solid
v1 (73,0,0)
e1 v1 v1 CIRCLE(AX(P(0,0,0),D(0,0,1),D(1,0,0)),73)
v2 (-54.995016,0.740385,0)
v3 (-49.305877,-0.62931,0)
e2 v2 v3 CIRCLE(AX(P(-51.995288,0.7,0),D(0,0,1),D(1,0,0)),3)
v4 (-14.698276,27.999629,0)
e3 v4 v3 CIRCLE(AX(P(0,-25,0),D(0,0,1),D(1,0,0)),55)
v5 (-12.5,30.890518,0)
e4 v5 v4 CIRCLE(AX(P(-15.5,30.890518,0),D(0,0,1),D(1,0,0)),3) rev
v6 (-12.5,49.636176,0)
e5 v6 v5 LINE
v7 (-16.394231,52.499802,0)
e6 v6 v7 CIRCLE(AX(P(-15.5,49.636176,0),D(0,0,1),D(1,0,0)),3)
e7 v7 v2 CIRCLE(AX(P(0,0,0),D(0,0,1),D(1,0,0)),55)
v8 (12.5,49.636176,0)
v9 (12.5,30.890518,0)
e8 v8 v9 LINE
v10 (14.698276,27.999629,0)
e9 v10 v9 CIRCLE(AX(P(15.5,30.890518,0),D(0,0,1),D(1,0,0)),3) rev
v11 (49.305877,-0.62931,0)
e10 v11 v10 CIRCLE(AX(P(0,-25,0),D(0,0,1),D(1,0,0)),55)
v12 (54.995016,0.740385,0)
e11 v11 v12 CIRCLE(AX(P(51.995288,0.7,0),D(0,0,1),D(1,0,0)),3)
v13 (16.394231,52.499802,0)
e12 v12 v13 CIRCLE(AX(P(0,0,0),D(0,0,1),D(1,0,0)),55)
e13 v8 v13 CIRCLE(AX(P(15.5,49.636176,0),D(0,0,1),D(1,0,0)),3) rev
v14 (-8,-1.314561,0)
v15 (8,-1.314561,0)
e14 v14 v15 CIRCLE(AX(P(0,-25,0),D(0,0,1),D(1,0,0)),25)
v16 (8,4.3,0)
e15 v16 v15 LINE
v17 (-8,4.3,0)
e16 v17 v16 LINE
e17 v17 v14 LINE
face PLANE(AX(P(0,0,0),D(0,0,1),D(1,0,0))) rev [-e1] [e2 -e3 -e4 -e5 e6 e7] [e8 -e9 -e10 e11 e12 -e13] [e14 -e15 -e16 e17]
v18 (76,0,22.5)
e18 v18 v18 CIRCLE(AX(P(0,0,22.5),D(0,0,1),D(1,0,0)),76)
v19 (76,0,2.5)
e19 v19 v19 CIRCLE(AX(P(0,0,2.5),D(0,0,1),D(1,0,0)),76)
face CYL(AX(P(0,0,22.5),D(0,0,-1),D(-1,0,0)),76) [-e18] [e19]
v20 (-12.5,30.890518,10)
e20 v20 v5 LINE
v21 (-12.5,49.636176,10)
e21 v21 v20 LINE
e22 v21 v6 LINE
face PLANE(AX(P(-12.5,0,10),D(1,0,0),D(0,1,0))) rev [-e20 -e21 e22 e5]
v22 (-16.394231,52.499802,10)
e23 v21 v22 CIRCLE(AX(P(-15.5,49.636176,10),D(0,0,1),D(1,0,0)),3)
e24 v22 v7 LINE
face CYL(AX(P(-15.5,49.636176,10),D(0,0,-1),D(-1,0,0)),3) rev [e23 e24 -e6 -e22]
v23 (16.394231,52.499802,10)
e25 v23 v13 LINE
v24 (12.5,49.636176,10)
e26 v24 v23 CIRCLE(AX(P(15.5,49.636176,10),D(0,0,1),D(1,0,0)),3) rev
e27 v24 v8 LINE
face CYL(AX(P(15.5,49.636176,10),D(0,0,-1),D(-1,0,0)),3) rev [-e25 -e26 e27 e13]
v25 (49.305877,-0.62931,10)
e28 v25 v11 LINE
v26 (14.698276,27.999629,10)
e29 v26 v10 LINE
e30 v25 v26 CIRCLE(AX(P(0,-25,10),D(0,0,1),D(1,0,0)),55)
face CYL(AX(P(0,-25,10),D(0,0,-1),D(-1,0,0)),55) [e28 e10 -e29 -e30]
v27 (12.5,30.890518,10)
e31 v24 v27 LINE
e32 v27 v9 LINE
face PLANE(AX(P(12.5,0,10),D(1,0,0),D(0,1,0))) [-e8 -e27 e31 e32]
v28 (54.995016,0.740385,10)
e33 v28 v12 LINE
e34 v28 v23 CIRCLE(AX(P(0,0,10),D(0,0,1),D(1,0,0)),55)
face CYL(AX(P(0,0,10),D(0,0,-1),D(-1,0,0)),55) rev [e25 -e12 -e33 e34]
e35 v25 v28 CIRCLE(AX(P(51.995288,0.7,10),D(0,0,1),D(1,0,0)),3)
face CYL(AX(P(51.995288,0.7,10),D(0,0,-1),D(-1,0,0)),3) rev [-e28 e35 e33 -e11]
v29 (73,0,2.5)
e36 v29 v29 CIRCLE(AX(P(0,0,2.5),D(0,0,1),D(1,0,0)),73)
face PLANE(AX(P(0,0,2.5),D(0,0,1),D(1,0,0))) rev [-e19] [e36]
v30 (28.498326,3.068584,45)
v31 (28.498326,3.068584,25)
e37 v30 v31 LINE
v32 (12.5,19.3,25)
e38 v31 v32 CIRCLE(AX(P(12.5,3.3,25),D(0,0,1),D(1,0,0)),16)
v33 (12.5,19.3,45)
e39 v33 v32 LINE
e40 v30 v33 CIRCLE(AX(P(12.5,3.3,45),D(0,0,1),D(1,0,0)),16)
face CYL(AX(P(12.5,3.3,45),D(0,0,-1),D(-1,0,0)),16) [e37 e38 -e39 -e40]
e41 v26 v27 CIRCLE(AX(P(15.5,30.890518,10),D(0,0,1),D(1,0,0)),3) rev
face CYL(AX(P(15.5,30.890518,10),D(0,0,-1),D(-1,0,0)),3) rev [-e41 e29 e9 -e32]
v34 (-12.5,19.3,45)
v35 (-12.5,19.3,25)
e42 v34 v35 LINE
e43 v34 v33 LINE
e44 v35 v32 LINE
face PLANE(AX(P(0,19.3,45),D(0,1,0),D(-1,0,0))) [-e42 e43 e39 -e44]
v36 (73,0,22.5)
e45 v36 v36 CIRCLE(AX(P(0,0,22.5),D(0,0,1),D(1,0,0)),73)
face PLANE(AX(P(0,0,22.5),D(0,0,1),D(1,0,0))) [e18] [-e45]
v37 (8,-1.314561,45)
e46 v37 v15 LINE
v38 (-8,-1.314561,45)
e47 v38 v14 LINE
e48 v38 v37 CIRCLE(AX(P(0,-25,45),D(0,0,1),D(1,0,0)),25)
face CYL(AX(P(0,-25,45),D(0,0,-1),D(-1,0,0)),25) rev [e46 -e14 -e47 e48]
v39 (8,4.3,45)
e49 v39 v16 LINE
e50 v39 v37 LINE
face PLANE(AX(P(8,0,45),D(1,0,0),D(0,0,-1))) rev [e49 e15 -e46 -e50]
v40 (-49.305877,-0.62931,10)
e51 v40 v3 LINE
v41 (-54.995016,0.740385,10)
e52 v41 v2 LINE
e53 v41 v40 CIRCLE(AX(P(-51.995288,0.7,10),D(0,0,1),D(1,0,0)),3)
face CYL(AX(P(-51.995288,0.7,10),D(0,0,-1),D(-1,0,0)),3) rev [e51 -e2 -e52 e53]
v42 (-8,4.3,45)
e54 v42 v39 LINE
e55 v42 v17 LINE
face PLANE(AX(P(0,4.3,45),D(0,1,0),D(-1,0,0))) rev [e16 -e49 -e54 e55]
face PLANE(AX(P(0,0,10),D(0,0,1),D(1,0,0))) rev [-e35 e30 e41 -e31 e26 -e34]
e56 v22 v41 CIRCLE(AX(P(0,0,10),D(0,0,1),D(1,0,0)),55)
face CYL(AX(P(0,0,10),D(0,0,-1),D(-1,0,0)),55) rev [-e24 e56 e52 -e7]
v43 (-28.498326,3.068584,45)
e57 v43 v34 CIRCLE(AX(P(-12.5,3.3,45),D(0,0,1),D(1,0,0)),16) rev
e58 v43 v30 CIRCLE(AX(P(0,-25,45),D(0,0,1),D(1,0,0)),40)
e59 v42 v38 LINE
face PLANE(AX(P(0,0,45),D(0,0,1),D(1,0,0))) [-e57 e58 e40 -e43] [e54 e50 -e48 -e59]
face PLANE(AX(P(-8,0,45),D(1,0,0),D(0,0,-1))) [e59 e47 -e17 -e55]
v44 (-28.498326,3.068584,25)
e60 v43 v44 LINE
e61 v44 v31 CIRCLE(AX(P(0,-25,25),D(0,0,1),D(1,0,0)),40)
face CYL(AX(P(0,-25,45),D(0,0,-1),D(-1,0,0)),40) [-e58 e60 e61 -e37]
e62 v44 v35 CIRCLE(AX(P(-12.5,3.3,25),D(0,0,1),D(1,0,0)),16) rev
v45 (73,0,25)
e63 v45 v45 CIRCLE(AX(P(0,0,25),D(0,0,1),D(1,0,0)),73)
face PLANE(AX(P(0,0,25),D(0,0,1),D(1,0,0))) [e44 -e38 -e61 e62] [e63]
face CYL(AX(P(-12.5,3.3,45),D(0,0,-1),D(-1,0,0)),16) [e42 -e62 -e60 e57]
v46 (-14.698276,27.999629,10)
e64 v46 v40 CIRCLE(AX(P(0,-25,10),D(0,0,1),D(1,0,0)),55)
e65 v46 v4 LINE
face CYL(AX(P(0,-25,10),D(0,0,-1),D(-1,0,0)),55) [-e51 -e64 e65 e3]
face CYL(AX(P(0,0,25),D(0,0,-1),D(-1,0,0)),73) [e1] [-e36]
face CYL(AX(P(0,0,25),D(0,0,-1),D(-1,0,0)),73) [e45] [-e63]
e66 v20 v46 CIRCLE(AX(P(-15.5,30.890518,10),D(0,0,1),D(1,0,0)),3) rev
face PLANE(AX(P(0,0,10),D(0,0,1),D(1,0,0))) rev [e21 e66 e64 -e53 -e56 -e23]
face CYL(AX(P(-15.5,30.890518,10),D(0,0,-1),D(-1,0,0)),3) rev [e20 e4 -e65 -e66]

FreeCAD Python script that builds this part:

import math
import FreeCAD as App
import Part
import Sketcher

V = App.Vector

doc = App.newDocument("Part")
body = doc.addObject("PartDesign::Body", "Body")

sketch1 = doc.addObject("Sketcher::SketchObject", "Sketch")
body.addObject(sketch1)
sketch1.AttachmentSupport = (doc.XY_Plane, [""])
sketch1.MapMode = "FlatFace"
sketch1.addGeometry(Part.Circle(V(0, 0, 0), V(0, 0, 1), 73), False)
sketch1.addGeometry(Part.ArcOfCircle(Part.Circle(V(0, -25, 0), V(0, 0, 1), 40), math.radians(135), math.radians(405)), False)
sketch1.addGeometry(Part.ArcOfCircle(Part.Circle(V(-12, 3, 0), V(0, 0, 1), 16), math.radians(90), math.radians(181)), False)
sketch1.addGeometry(Part.LineSegment(V(-12, 19, 0), V(12, 19, 0)), False)
sketch1.addGeometry(Part.ArcOfCircle(Part.Circle(V(12, 3, 0), V(0, 0, 1), 16), math.radians(-1), math.radians(90)), False)
sketch1.addConstraint(Sketcher.Constraint("Coincident", 1, 1, 2, 2))
sketch1.addConstraint(Sketcher.Constraint("Tangent", 2, 1, 3, 1))
sketch1.addConstraint(Sketcher.Constraint("Tangent", 3, 2, 4, 2))
sketch1.addConstraint(Sketcher.Constraint("Coincident", 4, 1, 1, 2))
sketch1.addConstraint(Sketcher.Constraint("Horizontal", 3))
sketch1.addConstraint(Sketcher.Constraint("Coincident", 0, 3, -1, 1))
sketch1.addConstraint(Sketcher.Constraint("Equal", 2, 4))
sketch1.addConstraint(Sketcher.Constraint("Symmetric", 1, 1, 4, 1, -2))
sketch1.addConstraint(Sketcher.Constraint("Diameter", 0, 146.0))
sketch1.addConstraint(Sketcher.Constraint("Radius", 1, 40.0))
sketch1.addConstraint(Sketcher.Constraint("Radius", 2, 16.0))
sketch1.addConstraint(Sketcher.Constraint("DistanceX", 3, 1, 3, 2, 25.0))
sketch1.addConstraint(Sketcher.Constraint("DistanceY", 1, 3, -1, 1, 25.0))
sketch1.addConstraint(Sketcher.Constraint("DistanceY", -1, 1, 2, 3, 3.3))
pad1 = doc.addObject("PartDesign::Pad", "Pad")
body.addObject(pad1)
pad1.Profile = sketch1
pad1.Length = 25

sketch2 = doc.addObject("Sketcher::SketchObject", "Sketch001")
body.addObject(sketch2)
sketch2.AttachmentSupport = (doc.XY_Plane, [""])
sketch2.MapMode = "FlatFace"
sketch2.AttachmentOffset = App.Placement(V(0, 0, 2.5), App.Rotation())
sketch2.addGeometry(Part.Circle(V(0, 0, 0), V(0, 0, 1), 76), False)
sketch2.addGeometry(Part.Circle(V(0, 0, 0), V(0, 0, 1), 73), False)
sketch2.addConstraint(Sketcher.Constraint("Coincident", 0, 3, -1, 1))
sketch2.addConstraint(Sketcher.Constraint("Coincident", 1, 3, -1, 1))
sketch2.addConstraint(Sketcher.Constraint("Diameter", 0, 152.0))
sketch2.addConstraint(Sketcher.Constraint("Diameter", 1, 146.0))
pad2 = doc.addObject("PartDesign::Pad", "Pad001")
body.addObject(pad2)
pad2.Profile = sketch2
pad2.Length = 20

sketch3 = doc.addObject("Sketcher::SketchObject", "Sketch002")
body.addObject(sketch3)
sketch3.AttachmentSupport = (doc.XY_Plane, [""])
sketch3.MapMode = "FlatFace"
sketch3.addGeometry(Part.ArcOfCircle(Part.Circle(V(-12, 3, 0), V(0, 0, 1), 16), math.radians(90), math.radians(181)), False)
sketch3.addGeometry(Part.ArcOfCircle(Part.Circle(V(0, -25, 0), V(0, 0, 1), 40), math.radians(135), math.radians(405)), False)
sketch3.addGeometry(Part.ArcOfCircle(Part.Circle(V(12, 3, 0), V(0, 0, 1), 16), math.radians(-1), math.radians(90)), False)
sketch3.addGeometry(Part.LineSegment(V(12, 19, 0), V(-12, 19, 0)), False)
sketch3.addGeometry(Part.LineSegment(V(-8, -1, 0), V(-8, 4, 0)), False)
sketch3.addGeometry(Part.LineSegment(V(-8, 4, 0), V(8, 4, 0)), False)
sketch3.addGeometry(Part.LineSegment(V(8, 4, 0), V(8, -1, 0)), False)
sketch3.addGeometry(Part.ArcOfCircle(Part.Circle(V(0, -25, 0), V(0, 0, 1), 25), math.radians(109), math.radians(431)), False)
sketch3.addConstraint(Sketcher.Constraint("Coincident", 0, 2, 1, 1))
sketch3.addConstraint(Sketcher.Constraint("Coincident", 1, 2, 2, 1))
sketch3.addConstraint(Sketcher.Constraint("Tangent", 2, 2, 3, 1))
sketch3.addConstraint(Sketcher.Constraint("Tangent", 3, 2, 0, 1))
sketch3.addConstraint(Sketcher.Constraint("Coincident", 4, 2, 5, 1))
sketch3.addConstraint(Sketcher.Constraint("Coincident", 5, 2, 6, 1))
sketch3.addConstraint(Sketcher.Constraint("Coincident", 6, 2, 7, 2))
sketch3.addConstraint(Sketcher.Constraint("Coincident", 7, 1, 4, 1))
sketch3.addConstraint(Sketcher.Constraint("Horizontal", 3))
sketch3.addConstraint(Sketcher.Constraint("Vertical", 4))
sketch3.addConstraint(Sketcher.Constraint("Horizontal", 5))
sketch3.addConstraint(Sketcher.Constraint("Vertical", 6))
sketch3.addConstraint(Sketcher.Constraint("Coincident", 7, 3, 1, 3))
sketch3.addConstraint(Sketcher.Constraint("Equal", 0, 2))
sketch3.addConstraint(Sketcher.Constraint("Symmetric", 0, 2, 1, 2, -2))
sketch3.addConstraint(Sketcher.Constraint("Horizontal", 6, 2, 7, 1))
sketch3.addConstraint(Sketcher.Constraint("Radius", 0, 16.0))
sketch3.addConstraint(Sketcher.Constraint("Radius", 1, 40.0))
sketch3.addConstraint(Sketcher.Constraint("Radius", 7, 25.0))
sketch3.addConstraint(Sketcher.Constraint("DistanceX", 3, 2, 3, 1, 25.0))
sketch3.addConstraint(Sketcher.Constraint("DistanceX", 5, 1, 5, 2, 16.0))
sketch3.addConstraint(Sketcher.Constraint("DistanceY", 1, 3, -1, 1, 25.0))
sketch3.addConstraint(Sketcher.Constraint("DistanceY", 0, 3, 4, 2, 1.0))
sketch3.addConstraint(Sketcher.Constraint("DistanceY", -1, 1, 0, 3, 3.3))
pad3 = doc.addObject("PartDesign::Pad", "Pad002")
body.addObject(pad3)
pad3.Profile = sketch3
pad3.Length = 45

sketch4 = doc.addObject("Sketcher::SketchObject", "Sketch003")
body.addObject(sketch4)
sketch4.AttachmentSupport = (doc.XY_Plane, [""])
sketch4.MapMode = "FlatFace"
sketch4.addGeometry(Part.ArcOfCircle(Part.Circle(V(0, -25, 0), V(0, 0, 1), 55), math.radians(26), math.radians(74)), False)
sketch4.addGeometry(Part.ArcOfCircle(Part.Circle(V(52, 0.7, 0), V(0, 0, 1), 3), math.radians(-154), math.radians(1)), False)
sketch4.addGeometry(Part.ArcOfCircle(Part.Circle(V(0, 0, 0), V(0, 0, 1), 55), math.radians(1), math.radians(73)), False)
sketch4.addGeometry(Part.ArcOfCircle(Part.Circle(V(15.5, 49.6, 0), V(0, 0, 1), 3), math.radians(73), math.radians(180)), False)
sketch4.addGeometry(Part.LineSegment(V(12.5, 49.6, 0), V(12.5, 30.9, 0)), False)
sketch4.addGeometry(Part.ArcOfCircle(Part.Circle(V(15.5, 30.9, 0), V(0, 0, 1), 3), math.radians(-180), math.radians(-106)), False)
sketch4.addGeometry(Part.LineSegment(V(-12.5, 30.9, 0), V(-12.5, 49.6, 0)), False)
sketch4.addGeometry(Part.ArcOfCircle(Part.Circle(V(-15.5, 49.6, 0), V(0, 0, 1), 3), math.radians(0), math.radians(107)), False)
sketch4.addGeometry(Part.ArcOfCircle(Part.Circle(V(0, 0, 0), V(0, 0, 1), 55), math.radians(107), math.radians(179)), False)
sketch4.addGeometry(Part.ArcOfCircle(Part.Circle(V(-52, 0.7, 0), V(0, 0, 1), 3), math.radians(179), math.radians(334)), False)
sketch4.addGeometry(Part.ArcOfCircle(Part.Circle(V(0, -25, 0), V(0, 0, 1), 55), math.radians(106), math.radians(154)), False)
sketch4.addGeometry(Part.ArcOfCircle(Part.Circle(V(-15.5, 30.9, 0), V(0, 0, 1), 3), math.radians(-74), math.radians(0)), False)
sketch4.addConstraint(Sketcher.Constraint("Tangent", 0, 1, 1, 1))
sketch4.addConstraint(Sketcher.Constraint("Tangent", 1, 2, 2, 1))
sketch4.addConstraint(Sketcher.Constraint("Tangent", 2, 2, 3, 1))
sketch4.addConstraint(Sketcher.Constraint("Tangent", 3, 2, 4, 1))
sketch4.addConstraint(Sketcher.Constraint("Tangent", 4, 2, 5, 1))
sketch4.addConstraint(Sketcher.Constraint("Tangent", 5, 2, 0, 2))
sketch4.addConstraint(Sketcher.Constraint("Tangent", 6, 2, 7, 1))
sketch4.addConstraint(Sketcher.Constraint("Tangent", 7, 2, 8, 1))
sketch4.addConstraint(Sketcher.Constraint("Tangent", 8, 2, 9, 1))
sketch4.addConstraint(Sketcher.Constraint("Tangent", 9, 2, 10, 2))
sketch4.addConstraint(Sketcher.Constraint("Tangent", 10, 1, 11, 1))
sketch4.addConstraint(Sketcher.Constraint("Tangent", 11, 2, 6, 1))
sketch4.addConstraint(Sketcher.Constraint("Vertical", 4))
sketch4.addConstraint(Sketcher.Constraint("Vertical", 6))
sketch4.addConstraint(Sketcher.Constraint("Coincident", 2, 3, -1, 1))
sketch4.addConstraint(Sketcher.Constraint("Coincident", 8, 3, -1, 1))
sketch4.addConstraint(Sketcher.Constraint("Coincident", 10, 3, 0, 3))
sketch4.addConstraint(Sketcher.Constraint("Equal", 0, 2))
sketch4.addConstraint(Sketcher.Constraint("Equal", 1, 3))
sketch4.addConstraint(Sketcher.Constraint("Equal", 3, 5))
sketch4.addConstraint(Sketcher.Constraint("Equal", 5, 7))
sketch4.addConstraint(Sketcher.Constraint("Equal", 2, 8))
sketch4.addConstraint(Sketcher.Constraint("Equal", 7, 9))
sketch4.addConstraint(Sketcher.Constraint("Equal", 8, 10))
sketch4.addConstraint(Sketcher.Constraint("Equal", 9, 11))
sketch4.addConstraint(Sketcher.Constraint("Symmetric", 5, 3, 11, 3, -2))
sketch4.addConstraint(Sketcher.Constraint("Radius", 0, 55.0))
sketch4.addConstraint(Sketcher.Constraint("Radius", 1, 3.0))
sketch4.addConstraint(Sketcher.Constraint("DistanceY", 0, 3, -1, 1, 25.0))
sketch4.addConstraint(Sketcher.Constraint("DistanceX", 7, 3, 3, 3, 31.0))
pocket1 = doc.addObject("PartDesign::Pocket", "Pocket")
body.addObject(pocket1)
pocket1.Profile = sketch4
pocket1.Length = 10
pocket1.Reversed = True

doc.recompute()
